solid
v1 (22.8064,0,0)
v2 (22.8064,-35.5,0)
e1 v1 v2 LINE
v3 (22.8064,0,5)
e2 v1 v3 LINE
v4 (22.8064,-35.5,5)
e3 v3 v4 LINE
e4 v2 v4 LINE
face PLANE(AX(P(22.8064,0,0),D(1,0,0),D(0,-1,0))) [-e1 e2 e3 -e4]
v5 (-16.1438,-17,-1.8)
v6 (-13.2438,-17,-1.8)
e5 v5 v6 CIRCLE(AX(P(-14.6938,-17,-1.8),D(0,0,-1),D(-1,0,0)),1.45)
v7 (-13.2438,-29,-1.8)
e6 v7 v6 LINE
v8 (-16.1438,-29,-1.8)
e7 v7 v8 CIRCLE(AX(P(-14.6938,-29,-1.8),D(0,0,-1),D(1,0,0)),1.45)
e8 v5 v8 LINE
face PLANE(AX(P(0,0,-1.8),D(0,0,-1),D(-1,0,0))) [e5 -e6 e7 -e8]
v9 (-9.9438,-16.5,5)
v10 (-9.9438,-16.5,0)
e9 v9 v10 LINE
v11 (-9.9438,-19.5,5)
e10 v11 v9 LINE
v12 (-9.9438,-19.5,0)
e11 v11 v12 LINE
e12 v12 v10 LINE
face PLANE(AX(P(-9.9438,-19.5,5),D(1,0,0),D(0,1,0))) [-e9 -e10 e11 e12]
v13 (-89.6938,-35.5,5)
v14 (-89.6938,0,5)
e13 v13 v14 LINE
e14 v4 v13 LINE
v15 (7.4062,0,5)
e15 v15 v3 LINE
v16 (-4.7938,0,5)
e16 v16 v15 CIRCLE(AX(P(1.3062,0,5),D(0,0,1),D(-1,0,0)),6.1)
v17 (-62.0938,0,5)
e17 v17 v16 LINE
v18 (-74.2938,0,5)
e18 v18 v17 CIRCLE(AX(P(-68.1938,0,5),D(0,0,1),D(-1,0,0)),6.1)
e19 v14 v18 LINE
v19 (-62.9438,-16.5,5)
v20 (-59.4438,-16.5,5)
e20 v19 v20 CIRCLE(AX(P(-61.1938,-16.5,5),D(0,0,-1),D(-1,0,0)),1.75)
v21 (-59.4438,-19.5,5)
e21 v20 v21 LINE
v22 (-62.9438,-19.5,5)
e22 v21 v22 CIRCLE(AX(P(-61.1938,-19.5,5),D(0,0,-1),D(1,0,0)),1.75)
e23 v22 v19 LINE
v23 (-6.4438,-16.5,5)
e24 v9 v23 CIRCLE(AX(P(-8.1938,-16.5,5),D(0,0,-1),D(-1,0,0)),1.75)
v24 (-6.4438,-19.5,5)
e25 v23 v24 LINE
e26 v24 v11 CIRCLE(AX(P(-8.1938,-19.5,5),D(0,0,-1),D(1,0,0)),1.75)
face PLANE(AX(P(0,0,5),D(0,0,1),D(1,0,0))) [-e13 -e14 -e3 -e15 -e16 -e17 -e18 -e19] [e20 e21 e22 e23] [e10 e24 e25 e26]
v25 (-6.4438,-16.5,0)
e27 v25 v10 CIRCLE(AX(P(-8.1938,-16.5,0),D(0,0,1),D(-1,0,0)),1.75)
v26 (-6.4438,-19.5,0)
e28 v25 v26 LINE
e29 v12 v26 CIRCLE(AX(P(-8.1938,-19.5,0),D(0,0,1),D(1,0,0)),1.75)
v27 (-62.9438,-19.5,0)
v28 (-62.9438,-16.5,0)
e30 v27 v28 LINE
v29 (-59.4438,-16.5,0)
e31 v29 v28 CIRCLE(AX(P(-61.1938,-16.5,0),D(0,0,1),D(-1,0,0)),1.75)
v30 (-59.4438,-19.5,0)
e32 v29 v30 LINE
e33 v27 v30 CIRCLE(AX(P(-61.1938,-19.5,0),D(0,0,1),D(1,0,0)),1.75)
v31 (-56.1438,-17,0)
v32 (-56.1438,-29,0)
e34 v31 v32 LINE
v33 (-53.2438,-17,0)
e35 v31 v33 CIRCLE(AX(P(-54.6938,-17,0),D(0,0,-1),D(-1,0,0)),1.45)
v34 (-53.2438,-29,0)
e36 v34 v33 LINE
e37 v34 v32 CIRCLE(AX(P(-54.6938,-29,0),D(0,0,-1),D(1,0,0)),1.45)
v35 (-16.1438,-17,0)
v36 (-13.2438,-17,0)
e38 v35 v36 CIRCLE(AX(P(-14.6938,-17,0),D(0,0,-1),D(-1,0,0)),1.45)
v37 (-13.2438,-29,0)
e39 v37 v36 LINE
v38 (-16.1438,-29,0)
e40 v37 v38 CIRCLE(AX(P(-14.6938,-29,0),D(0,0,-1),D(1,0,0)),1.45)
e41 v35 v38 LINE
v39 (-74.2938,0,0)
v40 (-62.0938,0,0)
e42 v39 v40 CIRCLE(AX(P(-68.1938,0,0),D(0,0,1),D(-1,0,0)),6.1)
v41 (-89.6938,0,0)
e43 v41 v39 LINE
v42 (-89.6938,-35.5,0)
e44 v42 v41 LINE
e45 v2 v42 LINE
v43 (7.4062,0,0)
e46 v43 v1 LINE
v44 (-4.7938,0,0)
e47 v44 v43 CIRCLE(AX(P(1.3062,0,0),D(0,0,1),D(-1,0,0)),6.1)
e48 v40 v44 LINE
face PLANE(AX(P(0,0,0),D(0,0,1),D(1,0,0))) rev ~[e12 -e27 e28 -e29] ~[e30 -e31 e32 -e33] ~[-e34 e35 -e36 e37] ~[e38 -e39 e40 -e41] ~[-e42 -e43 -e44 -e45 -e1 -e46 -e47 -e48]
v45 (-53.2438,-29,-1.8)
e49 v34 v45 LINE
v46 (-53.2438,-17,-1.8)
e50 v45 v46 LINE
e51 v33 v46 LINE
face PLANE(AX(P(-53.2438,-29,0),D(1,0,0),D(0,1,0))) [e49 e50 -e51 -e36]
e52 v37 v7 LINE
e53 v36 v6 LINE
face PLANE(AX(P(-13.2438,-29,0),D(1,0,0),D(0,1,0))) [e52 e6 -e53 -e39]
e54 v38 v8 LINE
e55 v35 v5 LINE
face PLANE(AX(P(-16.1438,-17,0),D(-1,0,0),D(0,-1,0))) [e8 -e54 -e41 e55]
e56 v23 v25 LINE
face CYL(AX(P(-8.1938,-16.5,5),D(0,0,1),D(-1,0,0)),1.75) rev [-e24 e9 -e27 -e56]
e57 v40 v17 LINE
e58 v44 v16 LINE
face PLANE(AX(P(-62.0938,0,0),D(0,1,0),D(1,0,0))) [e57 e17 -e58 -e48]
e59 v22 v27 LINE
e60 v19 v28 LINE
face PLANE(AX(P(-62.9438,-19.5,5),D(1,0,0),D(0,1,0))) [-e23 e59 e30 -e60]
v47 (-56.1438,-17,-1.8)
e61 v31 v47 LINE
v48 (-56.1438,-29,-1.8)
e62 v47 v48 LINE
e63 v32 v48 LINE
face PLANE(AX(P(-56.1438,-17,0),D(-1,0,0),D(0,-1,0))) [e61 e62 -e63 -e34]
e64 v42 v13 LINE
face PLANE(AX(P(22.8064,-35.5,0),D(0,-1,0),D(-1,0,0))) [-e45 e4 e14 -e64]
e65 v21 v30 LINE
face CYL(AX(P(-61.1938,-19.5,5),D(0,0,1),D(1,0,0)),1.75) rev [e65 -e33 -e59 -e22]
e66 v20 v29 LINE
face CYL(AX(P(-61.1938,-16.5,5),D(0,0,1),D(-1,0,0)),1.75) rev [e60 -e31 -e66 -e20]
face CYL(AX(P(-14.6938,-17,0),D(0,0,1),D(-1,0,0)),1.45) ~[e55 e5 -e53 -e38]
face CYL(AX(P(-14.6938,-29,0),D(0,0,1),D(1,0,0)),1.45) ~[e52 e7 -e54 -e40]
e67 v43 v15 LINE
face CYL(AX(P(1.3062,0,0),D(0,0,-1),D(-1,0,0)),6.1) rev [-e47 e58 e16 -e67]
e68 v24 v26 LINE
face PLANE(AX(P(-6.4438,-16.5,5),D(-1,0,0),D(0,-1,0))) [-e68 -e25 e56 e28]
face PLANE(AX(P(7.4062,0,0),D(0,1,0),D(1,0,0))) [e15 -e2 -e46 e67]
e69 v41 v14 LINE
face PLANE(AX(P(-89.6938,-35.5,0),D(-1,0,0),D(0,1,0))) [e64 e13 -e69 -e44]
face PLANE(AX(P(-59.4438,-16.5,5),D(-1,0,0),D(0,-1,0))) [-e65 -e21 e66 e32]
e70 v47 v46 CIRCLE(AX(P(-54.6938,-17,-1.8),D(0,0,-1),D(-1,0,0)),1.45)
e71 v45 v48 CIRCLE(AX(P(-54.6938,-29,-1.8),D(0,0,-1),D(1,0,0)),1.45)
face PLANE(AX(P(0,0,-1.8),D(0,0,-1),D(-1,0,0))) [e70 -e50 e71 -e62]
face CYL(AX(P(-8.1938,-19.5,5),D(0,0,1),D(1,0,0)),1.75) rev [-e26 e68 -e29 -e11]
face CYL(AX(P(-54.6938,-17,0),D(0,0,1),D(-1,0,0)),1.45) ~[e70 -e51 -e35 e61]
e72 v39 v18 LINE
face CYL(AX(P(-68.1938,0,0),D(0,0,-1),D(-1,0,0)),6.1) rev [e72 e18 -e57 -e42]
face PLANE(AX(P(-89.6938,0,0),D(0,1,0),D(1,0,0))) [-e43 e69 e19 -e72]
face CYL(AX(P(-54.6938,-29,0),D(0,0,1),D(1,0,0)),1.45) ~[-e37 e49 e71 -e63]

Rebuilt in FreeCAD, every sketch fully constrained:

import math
import FreeCAD as App
import Part
import Sketcher
Q = App.Units.Quantity

doc = App.newDocument("Part")
body = doc.addObject("PartDesign::Body", "Body")

# Sketch on XY plane
sketch1 = body.newObject("Sketcher::SketchObject", "Sketch")
sketch1.AttachmentSupport = (doc.getObject("XY_Plane"), [""])
sketch1.MapMode = "FlatFace"
sketch1.addGeometry([
    Part.LineSegment(App.Vector(-90, -36, 0), App.Vector(23, -36, 0)),  # 0
    Part.LineSegment(App.Vector(23, -36, 0), App.Vector(23, 0, 0)),  # 1
    Part.LineSegment(App.Vector(23, 0, 0), App.Vector(7, 0, 0)),  # 2
    Part.ArcOfCircle(Part.Circle(App.Vector(1, 0, 0), App.Vector(0, 0, 1), 6), math.radians(180), math.radians(360)),  # 3
    Part.LineSegment(App.Vector(-5, 0, 0), App.Vector(-62, 0, 0)),  # 4
    Part.ArcOfCircle(Part.Circle(App.Vector(-68, 0, 0), App.Vector(0, 0, 1), 6), math.radians(180), math.radians(360)),  # 5
    Part.LineSegment(App.Vector(-74, 0, 0), App.Vector(-90, 0, 0)),  # 6
    Part.LineSegment(App.Vector(-90, 0, 0), App.Vector(-90, -36, 0)),  # 7
], False)
sketch1.addConstraint([
    Sketcher.Constraint("Coincident", 0, 2, 1, 1),
    Sketcher.Constraint("Coincident", 1, 2, 2, 1),
    Sketcher.Constraint("Coincident", 2, 2, 3, 2),
    Sketcher.Constraint("Coincident", 3, 1, 4, 1),
    Sketcher.Constraint("Coincident", 4, 2, 5, 2),
    Sketcher.Constraint("Coincident", 5, 1, 6, 1),
    Sketcher.Constraint("Coincident", 6, 2, 7, 1),
    Sketcher.Constraint("Coincident", 7, 2, 0, 1),
    Sketcher.Constraint("Horizontal", 0),
    Sketcher.Constraint("Vertical", 1),
    Sketcher.Constraint("Horizontal", 2),
    Sketcher.Constraint("Horizontal", 4),
    Sketcher.Constraint("Horizontal", 6),
    Sketcher.Constraint("Vertical", 7),
    Sketcher.Constraint("Equal", 3, 5),
    Sketcher.Constraint("PointOnObject", 3, 3, -1),
    Sketcher.Constraint("PointOnObject", 5, 3, -1),
    Sketcher.Constraint("PointOnObject", 1, 2, -1),
    Sketcher.Constraint("PointOnObject", 3, 1, -1),
    Sketcher.Constraint("PointOnObject", 5, 1, -1),
    Sketcher.Constraint("Radius", 3, Q("6.1 mm")),
    Sketcher.Constraint("DistanceX", 4, 2, 4, 1, Q("57.3 mm")),
    Sketcher.Constraint("DistanceX", 6, 2, 6, 1, Q("15.4 mm")),
    Sketcher.Constraint("DistanceY", 1, 1, 1, 2, Q("35.5 mm")),
    Sketcher.Constraint("DistanceX", 0, 1, 0, 2, Q("112.5002 mm")),
    Sketcher.Constraint("DistanceX", -1, 1, 3, 3, Q("1.3062 mm")),
])
pad1 = body.newObject("PartDesign::Pad", "Pad")
pad1.Profile = sketch1
pad1.Length = 5

# Sketch on XY plane
sketch2 = body.newObject("Sketcher::SketchObject", "Sketch001")
sketch2.AttachmentSupport = (doc.getObject("XY_Plane"), [""])
sketch2.MapMode = "FlatFace"
sketch2.addGeometry([
    Part.LineSegment(App.Vector(-13.2, -17, 0), App.Vector(-13.2, -29, 0)),  # 0
    Part.ArcOfCircle(Part.Circle(App.Vector(-14.7, -29, 0), App.Vector(0, 0, 1), 1.4), math.radians(180), math.radians(360)),  # 1
    Part.LineSegment(App.Vector(-16.1, -29, 0), App.Vector(-16.1, -17, 0)),  # 2
    Part.ArcOfCircle(Part.Circle(App.Vector(-14.7, -17, 0), App.Vector(0, 0, 1), 1.4), math.radians(0), math.radians(180)),  # 3
    Part.LineSegment(App.Vector(-53.2, -17, 0), App.Vector(-53.2, -29, 0)),  # 4
    Part.ArcOfCircle(Part.Circle(App.Vector(-54.7, -29, 0), App.Vector(0, 0, 1), 1.5), math.radians(180), math.radians(360)),  # 5
    Part.LineSegment(App.Vector(-56.1, -29, 0), App.Vector(-56.1, -17, 0)),  # 6
    Part.ArcOfCircle(Part.Circle(App.Vector(-54.7, -17, 0), App.Vector(0, 0, 1), 1.4), math.radians(0), math.radians(180)),  # 7
], False)
sketch2.addConstraint([
    Sketcher.Constraint("Tangent", 0, 2, 1, 2),
    Sketcher.Constraint("Tangent", 1, 1, 2, 1),
    Sketcher.Constraint("Tangent", 2, 2, 3, 2),
    Sketcher.Constraint("Tangent", 3, 1, 0, 1),
    Sketcher.Constraint("Tangent", 4, 2, 5, 2),
    Sketcher.Constraint("Tangent", 5, 1, 6, 1),
    Sketcher.Constraint("Tangent", 6, 2, 7, 2),
    Sketcher.Constraint("Tangent", 7, 1, 4, 1),
    Sketcher.Constraint("Vertical", 0),
    Sketcher.Constraint("Vertical", 2),
    Sketcher.Constraint("Vertical", 4),
    Sketcher.Constraint("Vertical", 6),
    Sketcher.Constraint("Equal", 3, 5),
    Sketcher.Constraint("Horizontal", 1, 3, 5, 3),
    Sketcher.Constraint("Horizontal", 3, 3, 7, 3),
    Sketcher.Constraint("DistanceY", 0, 2, 0, 1, Q("12 mm")),
    Sketcher.Constraint("Radius", 1, Q("1.45 mm")),
    Sketcher.Constraint("DistanceY", 1, 3, -1, 1, Q("29 mm")),
    Sketcher.Constraint("DistanceX", 5, 3, 1, 3, Q("40 mm")),
    Sketcher.Constraint("DistanceX", 1, 3, -1, 1, Q("14.6938 mm")),
])
pad2 = body.newObject("PartDesign::Pad", "Pad001")
pad2.Profile = sketch2
pad2.Length = 1.8
pad2.Reversed = True

# Sketch on XY plane
sketch3 = body.newObject("Sketcher::SketchObject", "Sketch002")
sketch3.AttachmentSupport = (doc.getObject("XY_Plane"), [""])
sketch3.MapMode = "FlatFace"
sketch3.AttachmentOffset = App.Placement(App.Vector(0, 0, 5), App.Rotation())
sketch3.addGeometry([
    Part.ArcOfCircle(Part.Circle(App.Vector(-61.2, -16.5, 0), App.Vector(0, 0, 1), 1.8), math.radians(0), math.radians(180)),  # 0
    Part.LineSegment(App.Vector(-59.4, -16.5, 0), App.Vector(-59.4, -19.5, 0)),  # 1
    Part.ArcOfCircle(Part.Circle(App.Vector(-61.2, -19.5, 0), App.Vector(0, 0, 1), 1.8), math.radians(180), math.radians(360)),  # 2
    Part.LineSegment(App.Vector(-62.9, -19.5, 0), App.Vector(-62.9, -16.5, 0)),  # 3
    Part.ArcOfCircle(Part.Circle(App.Vector(-8.2, -16.5, 0), App.Vector(0, 0, 1), 1.8), math.radians(0), math.radians(180)),  # 4
    Part.LineSegment(App.Vector(-6.4, -16.5, 0), App.Vector(-6.4, -19.5, 0)),  # 5
    Part.ArcOfCircle(Part.Circle(App.Vector(-8.2, -19.5, 0), App.Vector(0, 0, 1), 1.7), math.radians(180), math.radians(360)),  # 6
    Part.LineSegment(App.Vector(-9.9, -19.5, 0), App.Vector(-9.9, -16.5, 0)),  # 7
], False)
sketch3.addConstraint([
    Sketcher.Constraint("Tangent", 0, 1, 1, 1),
    Sketcher.Constraint("Tangent", 1, 2, 2, 2),
    Sketcher.Constraint("Tangent", 2, 1, 3, 1),
    Sketcher.Constraint("Tangent", 3, 2, 0, 2),
    Sketcher.Constraint("Tangent", 4, 1, 5, 1),
    Sketcher.Constraint("Tangent", 5, 2, 6, 2),
    Sketcher.Constraint("Tangent", 6, 1, 7, 1),
    Sketcher.Constraint("Tangent", 7, 2, 4, 2),
    Sketcher.Constraint("Vertical", 1),
    Sketcher.Constraint("Vertical", 3),
    Sketcher.Constraint("Vertical", 5),
    Sketcher.Constraint("Vertical", 7),
    Sketcher.Constraint("Equal", 2, 4),
    Sketcher.Constraint("Horizontal", 0, 3, 4, 3),
    Sketcher.Constraint("Horizontal", 2, 3, 6, 3),
    Sketcher.Constraint("DistanceY", 1, 2, 1, 1, Q("3 mm")),
    Sketcher.Constraint("Radius", 0, Q("1.75 mm")),
    Sketcher.Constraint("DistanceX", 0, 3, 4, 3, Q("53 mm")),
    Sketcher.Constraint("DistanceY", 0, 3, -1, 1, Q("16.5 mm")),
    Sketcher.Constraint("DistanceX", 0, 3, -1, 1, Q("61.1938 mm")),
])
pocket1 = body.newObject("PartDesign::Pocket", "Pocket")
pocket1.Profile = sketch3
pocket1.Type = "ThroughAll"

doc.recompute()
